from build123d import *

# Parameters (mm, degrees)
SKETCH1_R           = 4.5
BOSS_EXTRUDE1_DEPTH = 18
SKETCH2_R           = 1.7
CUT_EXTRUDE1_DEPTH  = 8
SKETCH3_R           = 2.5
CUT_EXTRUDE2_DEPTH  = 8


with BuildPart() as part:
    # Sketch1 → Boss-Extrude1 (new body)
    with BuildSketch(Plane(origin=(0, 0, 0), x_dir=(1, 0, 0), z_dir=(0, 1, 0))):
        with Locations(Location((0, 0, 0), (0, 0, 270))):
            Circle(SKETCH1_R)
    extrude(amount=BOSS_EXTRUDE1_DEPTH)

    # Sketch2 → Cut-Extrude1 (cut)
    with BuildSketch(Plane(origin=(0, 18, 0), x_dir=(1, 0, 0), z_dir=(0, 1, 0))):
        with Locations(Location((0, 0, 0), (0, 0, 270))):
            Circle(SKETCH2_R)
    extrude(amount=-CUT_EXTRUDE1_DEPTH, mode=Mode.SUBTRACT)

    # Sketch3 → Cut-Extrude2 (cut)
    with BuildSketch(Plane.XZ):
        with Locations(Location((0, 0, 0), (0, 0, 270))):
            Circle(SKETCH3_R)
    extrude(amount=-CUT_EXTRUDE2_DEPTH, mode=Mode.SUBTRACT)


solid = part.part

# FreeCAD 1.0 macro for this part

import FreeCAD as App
import Part
import Sketcher

V = App.Vector
Q = App.Units.Quantity

doc = App.newDocument("Part")
body = doc.addObject("PartDesign::Body", "Body")

# Sketch on XZ plane
sketch1 = body.newObject("Sketcher::SketchObject", "Sketch")
sketch1.AttachmentSupport = (doc.getObject("XZ_Plane"), [""])
sketch1.MapMode = "FlatFace"
sketch1.addGeometry(Part.Circle(V(0, 0, 0), V(0, 0, 1), 4.5), False)
sketch1.addConstraint(Sketcher.Constraint("Coincident", 0, 3, -1, 1))
sketch1.addConstraint(Sketcher.Constraint("Diameter", 0, Q("9 mm")))
pad1 = body.newObject("PartDesign::Pad", "Pad")
pad1.Profile = sketch1
pad1.Length = 18
pad1.Reversed = True

# Sketch on XZ plane
sketch2 = body.newObject("Sketcher::SketchObject", "Sketch001")
sketch2.AttachmentSupport = (doc.getObject("XZ_Plane"), [""])
sketch2.MapMode = "FlatFace"
sketch2.AttachmentOffset = App.Placement(V(0, 0, -18), App.Rotation())
sketch2.addGeometry(Part.Circle(V(0, 0, 0), V(0, 0, 1), 1.7), False)
sketch2.addConstraint(Sketcher.Constraint("Coincident", 0, 3, -1, 1))
sketch2.addConstraint(Sketcher.Constraint("Diameter", 0, Q("3.4 mm")))
pocket1 = body.newObject("PartDesign::Pocket", "Pocket")
pocket1.Profile = sketch2
pocket1.Length = 8
pocket1.Reversed = True

# Sketch on XZ plane
sketch3 = body.newObject("Sketcher::SketchObject", "Sketch002")
sketch3.AttachmentSupport = (doc.getObject("XZ_Plane"), [""])
sketch3.MapMode = "FlatFace"
sketch3.addGeometry(Part.Circle(V(0, 0, 0), V(0, 0, 1), 2.5), False)
sketch3.addConstraint(Sketcher.Constraint("Coincident", 0, 3, -1, 1))
sketch3.addConstraint(Sketcher.Constraint("Diameter", 0, Q("5 mm")))
pocket2 = body.newObject("PartDesign::Pocket", "Pocket001")
pocket2.Profile = sketch3
pocket2.Length = 8

doc.recompute()
